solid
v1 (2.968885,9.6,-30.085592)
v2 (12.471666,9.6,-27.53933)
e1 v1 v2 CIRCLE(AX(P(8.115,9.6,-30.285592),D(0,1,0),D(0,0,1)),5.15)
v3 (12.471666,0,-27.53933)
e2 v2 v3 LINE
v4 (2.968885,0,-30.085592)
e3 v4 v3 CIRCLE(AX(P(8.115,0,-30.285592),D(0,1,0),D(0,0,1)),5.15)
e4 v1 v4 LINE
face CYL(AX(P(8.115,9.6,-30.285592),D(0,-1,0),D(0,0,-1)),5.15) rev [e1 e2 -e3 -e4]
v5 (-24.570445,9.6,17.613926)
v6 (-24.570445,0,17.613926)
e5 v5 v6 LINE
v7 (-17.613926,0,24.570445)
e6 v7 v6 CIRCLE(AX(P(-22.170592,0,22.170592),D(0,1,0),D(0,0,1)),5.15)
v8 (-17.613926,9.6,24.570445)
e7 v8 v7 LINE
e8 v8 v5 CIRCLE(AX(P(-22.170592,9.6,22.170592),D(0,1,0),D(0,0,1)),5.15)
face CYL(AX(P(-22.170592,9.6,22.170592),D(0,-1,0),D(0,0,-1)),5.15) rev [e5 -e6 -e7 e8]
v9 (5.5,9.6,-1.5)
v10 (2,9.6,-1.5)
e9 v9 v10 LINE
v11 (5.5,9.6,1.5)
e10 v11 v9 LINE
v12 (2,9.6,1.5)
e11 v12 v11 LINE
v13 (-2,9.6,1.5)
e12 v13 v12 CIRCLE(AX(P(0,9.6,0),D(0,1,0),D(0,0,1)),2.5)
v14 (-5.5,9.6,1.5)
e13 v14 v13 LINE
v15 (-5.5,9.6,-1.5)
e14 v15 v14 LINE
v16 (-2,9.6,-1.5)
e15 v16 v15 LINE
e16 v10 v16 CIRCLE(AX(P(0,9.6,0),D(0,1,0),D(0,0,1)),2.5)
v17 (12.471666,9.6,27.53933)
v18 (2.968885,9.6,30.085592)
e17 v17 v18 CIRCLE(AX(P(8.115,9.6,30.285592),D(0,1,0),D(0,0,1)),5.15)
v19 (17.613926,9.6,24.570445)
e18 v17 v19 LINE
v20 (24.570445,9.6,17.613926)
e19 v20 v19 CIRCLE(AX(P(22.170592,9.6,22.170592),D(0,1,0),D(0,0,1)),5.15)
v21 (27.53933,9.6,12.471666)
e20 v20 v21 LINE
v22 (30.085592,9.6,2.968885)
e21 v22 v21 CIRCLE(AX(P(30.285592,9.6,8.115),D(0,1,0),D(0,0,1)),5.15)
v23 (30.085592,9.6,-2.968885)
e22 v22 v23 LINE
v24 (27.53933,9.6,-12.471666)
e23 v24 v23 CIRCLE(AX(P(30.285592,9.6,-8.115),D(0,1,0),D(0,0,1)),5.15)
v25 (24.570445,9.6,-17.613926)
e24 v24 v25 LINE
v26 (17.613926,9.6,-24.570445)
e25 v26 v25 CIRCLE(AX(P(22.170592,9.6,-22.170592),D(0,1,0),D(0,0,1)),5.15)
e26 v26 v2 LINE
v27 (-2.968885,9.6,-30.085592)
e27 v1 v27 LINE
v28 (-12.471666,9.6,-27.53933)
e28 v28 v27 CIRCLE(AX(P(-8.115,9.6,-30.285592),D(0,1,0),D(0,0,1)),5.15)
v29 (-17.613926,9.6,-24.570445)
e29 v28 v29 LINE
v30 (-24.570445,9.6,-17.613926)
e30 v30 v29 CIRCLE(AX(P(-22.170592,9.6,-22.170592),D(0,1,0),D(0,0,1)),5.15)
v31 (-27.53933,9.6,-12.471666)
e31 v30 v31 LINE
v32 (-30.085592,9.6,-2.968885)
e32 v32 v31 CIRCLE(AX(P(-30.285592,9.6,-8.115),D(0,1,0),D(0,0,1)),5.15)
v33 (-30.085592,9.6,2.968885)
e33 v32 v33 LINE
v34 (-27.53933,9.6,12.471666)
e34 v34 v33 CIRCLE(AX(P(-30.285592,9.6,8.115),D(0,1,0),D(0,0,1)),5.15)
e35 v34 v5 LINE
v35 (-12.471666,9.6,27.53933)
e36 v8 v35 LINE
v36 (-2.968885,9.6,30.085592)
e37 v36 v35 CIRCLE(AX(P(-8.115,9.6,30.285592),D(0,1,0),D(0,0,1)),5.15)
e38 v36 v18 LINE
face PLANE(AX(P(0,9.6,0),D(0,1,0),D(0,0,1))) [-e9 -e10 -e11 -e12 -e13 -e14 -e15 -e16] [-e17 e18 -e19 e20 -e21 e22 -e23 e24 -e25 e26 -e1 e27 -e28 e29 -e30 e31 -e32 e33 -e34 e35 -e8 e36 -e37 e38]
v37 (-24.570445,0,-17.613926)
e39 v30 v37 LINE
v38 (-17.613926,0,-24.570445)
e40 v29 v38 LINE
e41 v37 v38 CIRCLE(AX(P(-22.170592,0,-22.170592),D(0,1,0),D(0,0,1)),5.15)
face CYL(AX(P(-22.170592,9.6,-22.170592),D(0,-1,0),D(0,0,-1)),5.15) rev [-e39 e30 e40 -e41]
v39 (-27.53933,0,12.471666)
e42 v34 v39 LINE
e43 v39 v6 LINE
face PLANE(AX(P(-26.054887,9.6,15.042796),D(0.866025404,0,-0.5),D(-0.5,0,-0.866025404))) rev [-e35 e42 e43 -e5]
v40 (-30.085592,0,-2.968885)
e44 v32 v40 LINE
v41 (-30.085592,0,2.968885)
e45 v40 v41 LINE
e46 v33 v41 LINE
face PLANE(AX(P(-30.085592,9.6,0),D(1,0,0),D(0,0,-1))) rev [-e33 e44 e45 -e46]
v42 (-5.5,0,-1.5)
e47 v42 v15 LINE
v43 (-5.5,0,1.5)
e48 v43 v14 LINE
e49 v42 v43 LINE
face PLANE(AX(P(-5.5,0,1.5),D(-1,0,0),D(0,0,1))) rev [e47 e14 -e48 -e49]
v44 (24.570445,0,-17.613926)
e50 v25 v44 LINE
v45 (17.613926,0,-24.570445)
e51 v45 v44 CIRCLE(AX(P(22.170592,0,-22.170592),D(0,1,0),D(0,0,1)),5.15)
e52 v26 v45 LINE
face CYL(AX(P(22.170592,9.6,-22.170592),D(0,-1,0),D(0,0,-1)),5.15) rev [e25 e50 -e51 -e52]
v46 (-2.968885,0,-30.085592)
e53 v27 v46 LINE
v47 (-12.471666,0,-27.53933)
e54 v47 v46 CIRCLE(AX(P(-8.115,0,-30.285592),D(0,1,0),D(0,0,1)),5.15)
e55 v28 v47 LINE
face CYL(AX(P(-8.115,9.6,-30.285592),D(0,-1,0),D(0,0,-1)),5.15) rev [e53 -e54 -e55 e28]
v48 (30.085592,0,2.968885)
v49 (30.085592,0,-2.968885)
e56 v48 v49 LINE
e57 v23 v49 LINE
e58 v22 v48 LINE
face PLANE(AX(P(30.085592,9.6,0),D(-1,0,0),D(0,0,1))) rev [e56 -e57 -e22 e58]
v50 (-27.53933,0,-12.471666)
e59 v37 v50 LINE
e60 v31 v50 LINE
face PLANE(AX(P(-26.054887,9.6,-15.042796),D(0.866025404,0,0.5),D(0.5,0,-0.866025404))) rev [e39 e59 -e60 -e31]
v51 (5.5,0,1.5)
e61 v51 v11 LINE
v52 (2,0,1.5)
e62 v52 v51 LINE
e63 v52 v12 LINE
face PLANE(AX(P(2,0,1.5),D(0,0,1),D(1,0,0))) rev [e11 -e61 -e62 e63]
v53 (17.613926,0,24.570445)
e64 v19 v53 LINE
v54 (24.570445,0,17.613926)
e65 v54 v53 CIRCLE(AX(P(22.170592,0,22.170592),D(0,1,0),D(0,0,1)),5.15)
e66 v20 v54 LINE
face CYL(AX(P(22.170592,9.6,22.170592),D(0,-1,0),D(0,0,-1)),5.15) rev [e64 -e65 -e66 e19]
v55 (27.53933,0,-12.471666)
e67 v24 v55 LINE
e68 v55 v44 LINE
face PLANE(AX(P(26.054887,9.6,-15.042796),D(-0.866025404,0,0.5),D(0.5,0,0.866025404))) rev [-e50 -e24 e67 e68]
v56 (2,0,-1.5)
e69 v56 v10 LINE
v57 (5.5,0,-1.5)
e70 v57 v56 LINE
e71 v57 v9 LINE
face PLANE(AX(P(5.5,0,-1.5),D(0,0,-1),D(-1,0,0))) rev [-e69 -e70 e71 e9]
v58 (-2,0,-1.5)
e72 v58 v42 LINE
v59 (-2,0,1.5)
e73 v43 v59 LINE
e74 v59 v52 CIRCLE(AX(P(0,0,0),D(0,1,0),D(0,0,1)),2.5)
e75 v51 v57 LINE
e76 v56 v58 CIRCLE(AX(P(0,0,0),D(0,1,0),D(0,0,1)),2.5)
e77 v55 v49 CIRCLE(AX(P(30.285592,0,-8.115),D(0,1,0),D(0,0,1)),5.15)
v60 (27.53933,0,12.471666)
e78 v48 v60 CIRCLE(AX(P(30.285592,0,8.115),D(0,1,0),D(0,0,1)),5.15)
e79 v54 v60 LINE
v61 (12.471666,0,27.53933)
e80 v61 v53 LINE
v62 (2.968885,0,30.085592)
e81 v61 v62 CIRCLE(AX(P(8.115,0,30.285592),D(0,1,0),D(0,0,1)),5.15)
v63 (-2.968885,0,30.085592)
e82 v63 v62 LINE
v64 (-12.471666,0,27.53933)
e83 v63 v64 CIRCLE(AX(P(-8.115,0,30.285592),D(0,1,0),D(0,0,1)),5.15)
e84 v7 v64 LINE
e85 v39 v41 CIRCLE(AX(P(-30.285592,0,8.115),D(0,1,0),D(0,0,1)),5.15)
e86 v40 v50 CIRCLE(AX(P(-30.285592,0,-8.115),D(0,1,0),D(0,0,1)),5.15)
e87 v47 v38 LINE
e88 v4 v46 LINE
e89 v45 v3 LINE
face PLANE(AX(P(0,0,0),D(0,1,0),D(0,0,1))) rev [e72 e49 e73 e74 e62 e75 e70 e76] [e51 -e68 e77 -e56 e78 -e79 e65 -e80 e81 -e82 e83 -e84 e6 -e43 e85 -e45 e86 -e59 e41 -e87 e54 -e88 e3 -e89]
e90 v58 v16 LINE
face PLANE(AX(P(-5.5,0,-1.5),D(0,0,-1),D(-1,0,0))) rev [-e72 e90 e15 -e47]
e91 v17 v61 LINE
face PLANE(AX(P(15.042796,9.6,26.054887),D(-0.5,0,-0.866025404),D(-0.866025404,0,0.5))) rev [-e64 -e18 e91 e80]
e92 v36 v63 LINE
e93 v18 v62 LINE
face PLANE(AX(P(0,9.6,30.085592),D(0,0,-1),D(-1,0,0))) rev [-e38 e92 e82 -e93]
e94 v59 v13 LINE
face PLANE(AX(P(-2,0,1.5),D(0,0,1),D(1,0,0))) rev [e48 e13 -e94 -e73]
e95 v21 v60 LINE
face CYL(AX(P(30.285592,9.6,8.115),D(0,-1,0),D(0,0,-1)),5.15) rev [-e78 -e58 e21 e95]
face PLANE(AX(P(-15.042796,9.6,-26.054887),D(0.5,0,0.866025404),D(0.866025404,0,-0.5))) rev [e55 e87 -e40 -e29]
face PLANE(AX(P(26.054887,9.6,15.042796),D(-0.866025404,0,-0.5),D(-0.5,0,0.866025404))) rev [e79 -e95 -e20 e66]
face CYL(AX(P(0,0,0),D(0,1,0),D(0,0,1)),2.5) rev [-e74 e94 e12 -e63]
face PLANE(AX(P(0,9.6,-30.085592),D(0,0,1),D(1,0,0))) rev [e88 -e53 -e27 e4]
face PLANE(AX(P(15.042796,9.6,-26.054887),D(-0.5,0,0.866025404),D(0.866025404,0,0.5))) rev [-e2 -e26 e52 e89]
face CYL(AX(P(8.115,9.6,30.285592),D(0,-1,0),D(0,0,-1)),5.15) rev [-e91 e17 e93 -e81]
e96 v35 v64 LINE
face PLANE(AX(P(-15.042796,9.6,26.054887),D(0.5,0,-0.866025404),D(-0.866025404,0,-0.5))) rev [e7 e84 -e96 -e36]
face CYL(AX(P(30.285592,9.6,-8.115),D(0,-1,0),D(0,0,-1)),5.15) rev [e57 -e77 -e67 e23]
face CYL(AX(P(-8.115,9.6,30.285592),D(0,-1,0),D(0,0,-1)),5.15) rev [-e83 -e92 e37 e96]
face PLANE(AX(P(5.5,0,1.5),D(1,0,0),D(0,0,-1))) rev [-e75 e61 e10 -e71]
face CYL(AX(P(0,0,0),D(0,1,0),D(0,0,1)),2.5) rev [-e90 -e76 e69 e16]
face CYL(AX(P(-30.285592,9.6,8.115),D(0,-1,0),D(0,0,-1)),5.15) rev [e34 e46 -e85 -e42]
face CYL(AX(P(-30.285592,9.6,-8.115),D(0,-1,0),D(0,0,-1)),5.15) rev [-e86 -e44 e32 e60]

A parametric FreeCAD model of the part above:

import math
import FreeCAD as App
import Part
import Sketcher
Q = App.Units.Quantity

doc = App.newDocument("Part")
body = doc.addObject("PartDesign::Body", "Body")

# Sketch on XZ plane
sketch1 = body.newObject("Sketcher::SketchObject", "Sketch")
sketch1.AttachmentSupport = (doc.getObject("XZ_Plane"), [""])
sketch1.MapMode = "FlatFace"
sketch1.addGeometry(Part.ArcOfCircle(Part.Circle(App.Vector(-8, 30, 0), App.Vector(0, 0, 1), 5), math.radians(-148), math.radians(-2)), False)
sketch1.addGeometry(Part.LineSegment(App.Vector(-3, 30, 0), App.Vector(3, 30, 0)), False)
sketch1.addGeometry(Part.ArcOfCircle(Part.Circle(App.Vector(8, 30, 0), App.Vector(0, 0, 1), 5), math.radians(-178), math.radians(-32)), False)
sketch1.addGeometry(Part.LineSegment(App.Vector(12, 28, 0), App.Vector(18, 25, 0)), False)
sketch1.addGeometry(Part.ArcOfCircle(Part.Circle(App.Vector(22, 22, 0), App.Vector(0, 0, 1), 5), math.radians(152), math.radians(298)), False)
sketch1.addGeometry(Part.LineSegment(App.Vector(25, 18, 0), App.Vector(28, 12, 0)), False)
sketch1.addGeometry(Part.ArcOfCircle(Part.Circle(App.Vector(30, 8, 0), App.Vector(0, 0, 1), 5), math.radians(122), math.radians(268)), False)
sketch1.addGeometry(Part.LineSegment(App.Vector(30, 3, 0), App.Vector(30, -3, 0)), False)
sketch1.addGeometry(Part.ArcOfCircle(Part.Circle(App.Vector(30, -8, 0), App.Vector(0, 0, 1), 5), math.radians(92), math.radians(238)), False)
sketch1.addGeometry(Part.LineSegment(App.Vector(28, -12, 0), App.Vector(25, -18, 0)), False)
sketch1.addGeometry(Part.ArcOfCircle(Part.Circle(App.Vector(22, -22, 0), App.Vector(0, 0, 1), 5), math.radians(62), math.radians(208)), False)
sketch1.addGeometry(Part.LineSegment(App.Vector(18, -25, 0), App.Vector(12, -28, 0)), False)
sketch1.addGeometry(Part.ArcOfCircle(Part.Circle(App.Vector(8, -30, 0), App.Vector(0, 0, 1), 5), math.radians(32), math.radians(178)), False)
sketch1.addGeometry(Part.LineSegment(App.Vector(3, -30, 0), App.Vector(-3, -30, 0)), False)
sketch1.addGeometry(Part.ArcOfCircle(Part.Circle(App.Vector(-8, -30, 0), App.Vector(0, 0, 1), 5), math.radians(2), math.radians(148)), False)
sketch1.addGeometry(Part.LineSegment(App.Vector(-12, -28, 0), App.Vector(-18, -25, 0)), False)
sketch1.addGeometry(Part.ArcOfCircle(Part.Circle(App.Vector(-22, -22, 0), App.Vector(0, 0, 1), 5), math.radians(-28), math.radians(118)), False)
sketch1.addGeometry(Part.LineSegment(App.Vector(-25, -18, 0), App.Vector(-28, -12, 0)), False)
sketch1.addGeometry(Part.ArcOfCircle(Part.Circle(App.Vector(-30, -8, 0), App.Vector(0, 0, 1), 5), math.radians(-58), math.radians(88)), False)
sketch1.addGeometry(Part.LineSegment(App.Vector(-30, -3, 0), App.Vector(-30, 3, 0)), False)
sketch1.addGeometry(Part.ArcOfCircle(Part.Circle(App.Vector(-30, 8, 0), App.Vector(0, 0, 1), 5), math.radians(-88), math.radians(58)), False)
sketch1.addGeometry(Part.LineSegment(App.Vector(-28, 12, 0), App.Vector(-25, 18, 0)), False)
sketch1.addGeometry(Part.ArcOfCircle(Part.Circle(App.Vector(-22, 22, 0), App.Vector(0, 0, 1), 5), math.radians(-118), math.radians(28)), False)
sketch1.addGeometry(Part.LineSegment(App.Vector(-18, 25, 0), App.Vector(-12, 28, 0)), False)
sketch1.addConstraint(Sketcher.Constraint("Coincident", 0, 2, 1, 1))
sketch1.addConstraint(Sketcher.Constraint("Coincident", 1, 2, 2, 1))
sketch1.addConstraint(Sketcher.Constraint("Coincident", 2, 2, 3, 1))
sketch1.addConstraint(Sketcher.Constraint("Coincident", 3, 2, 4, 1))
sketch1.addConstraint(Sketcher.Constraint("Coincident", 4, 2, 5, 1))
sketch1.addConstraint(Sketcher.Constraint("Coincident", 5, 2, 6, 1))
sketch1.addConstraint(Sketcher.Constraint("Coincident", 6, 2, 7, 1))
sketch1.addConstraint(Sketcher.Constraint("Coincident", 7, 2, 8, 1))
sketch1.addConstraint(Sketcher.Constraint("Coincident", 8, 2, 9, 1))
sketch1.addConstraint(Sketcher.Constraint("Coincident", 9, 2, 10, 1))
sketch1.addConstraint(Sketcher.Constraint("Coincident", 10, 2, 11, 1))
sketch1.addConstraint(Sketcher.Constraint("Coincident", 11, 2, 12, 1))
sketch1.addConstraint(Sketcher.Constraint("Coincident", 12, 2, 13, 1))
sketch1.addConstraint(Sketcher.Constraint("Coincident", 13, 2, 14, 1))
sketch1.addConstraint(Sketcher.Constraint("Coincident", 14, 2, 15, 1))
sketch1.addConstraint(Sketcher.Constraint("Coincident", 15, 2, 16, 1))
sketch1.addConstraint(Sketcher.Constraint("Coincident", 16, 2, 17, 1))
sketch1.addConstraint(Sketcher.Constraint("Coincident", 17, 2, 18, 1))
sketch1.addConstraint(Sketcher.Constraint("Coincident", 18, 2, 19, 1))
sketch1.addConstraint(Sketcher.Constraint("Coincident", 19, 2, 20, 1))
sketch1.addConstraint(Sketcher.Constraint("Coincident", 20, 2, 21, 1))
sketch1.addConstraint(Sketcher.Constraint("Coincident", 21, 2, 22, 1))
sketch1.addConstraint(Sketcher.Constraint("Coincident", 22, 2, 23, 1))
sketch1.addConstraint(Sketcher.Constraint("Coincident", 23, 2, 0, 1))
sketch1.addConstraint(Sketcher.Constraint("Horizontal", 1))
sketch1.addConstraint(Sketcher.Constraint("Vertical", 7))
sketch1.addConstraint(Sketcher.Constraint("Horizontal", 13))
sketch1.addConstraint(Sketcher.Constraint("Vertical", 19))
sketch1.addConstraint(Sketcher.Constraint("Equal", 0, 2))
sketch1.addConstraint(Sketcher.Constraint("Equal", 2, 4))
sketch1.addConstraint(Sketcher.Constraint("Equal", 4, 6))
sketch1.addConstraint(Sketcher.Constraint("Equal", 6, 8))
sketch1.addConstraint(Sketcher.Constraint("Equal", 8, 10))
sketch1.addConstraint(Sketcher.Constraint("Equal", 10, 12))
sketch1.addConstraint(Sketcher.Constraint("Equal", 12, 14))
sketch1.addConstraint(Sketcher.Constraint("Equal", 14, 16))
sketch1.addConstraint(Sketcher.Constraint("Equal", 16, 18))
sketch1.addConstraint(Sketcher.Constraint("Equal", 18, 20))
sketch1.addConstraint(Sketcher.Constraint("Equal", 20, 22))
sketch1.addConstraint(Sketcher.Constraint("Symmetric", 0, 3, 12, 3, -1, 1))
sketch1.addConstraint(Sketcher.Constraint("Symmetric", 2, 3, 14, 3, -1, 1))
sketch1.addConstraint(Sketcher.Constraint("Symmetric", 4, 3, 16, 3, -1, 1))
sketch1.addConstraint(Sketcher.Constraint("Symmetric", 6, 3, 18, 3, -1, 1))
sketch1.addConstraint(Sketcher.Constraint("Symmetric", 8, 3, 20, 3, -1, 1))
sketch1.addConstraint(Sketcher.Constraint("Symmetric", 10, 3, 22, 3, -1, 1))
sketch1.addConstraint(Sketcher.Constraint("Symmetric", 0, 3, 2, 3, -2))
sketch1.addConstraint(Sketcher.Constraint("Symmetric", 10, 3, 16, 3, -2))
sketch1.addConstraint(Sketcher.Constraint("Symmetric", 8, 3, 18, 3, -2))
sketch1.addConstraint(Sketcher.Constraint("Perpendicular", 3, 9))
sketch1.addConstraint(Sketcher.Constraint("Perpendicular", 5, 11))
sketch1.addConstraint(Sketcher.Constraint("Perpendicular", 9, 15))
sketch1.addConstraint(Sketcher.Constraint("Perpendicular", 11, 17))
sketch1.addConstraint(Sketcher.Constraint("Perpendicular", 15, 21))
sketch1.addConstraint(Sketcher.Constraint("Perpendicular", 17, 23))
sketch1.addConstraint(Sketcher.Constraint("Horizontal", 11, 2, 14, 2))
sketch1.addConstraint(Sketcher.Constraint("Horizontal", 10, 2, 15, 2))
sketch1.addConstraint(Sketcher.Constraint("Horizontal", 9, 2, 16, 2))
sketch1.addConstraint(Sketcher.Constraint("Horizontal", 7, 2, 18, 2))
sketch1.addConstraint(Sketcher.Constraint("Horizontal", 5, 2, 20, 2))
sketch1.addConstraint(Sketcher.Constraint("Horizontal", 3, 2, 22, 2))
sketch1.addConstraint(Sketcher.Constraint("Vertical", 5, 2, 8, 2))
sketch1.addConstraint(Sketcher.Constraint("Vertical", 3, 2, 10, 2))
sketch1.addConstraint(Sketcher.Constraint("Vertical", 1, 2, 12, 2))
sketch1.addConstraint(Sketcher.Constraint("Equal", 13, 7))
sketch1.addConstraint(Sketcher.Constraint("Equal", 3, 5))
sketch1.addConstraint(Sketcher.Constraint("Angle", 3, Q("-30 deg")))
sketch1.addConstraint(Sketcher.Constraint("Radius", 0, 5.15))
sketch1.addConstraint(Sketcher.Constraint("DistanceY", 0, 2, 0, 3, 0.2))
sketch1.addConstraint(Sketcher.Constraint("DistanceX", 6, 2, 6, 3, 0.2))
sketch1.addConstraint(Sketcher.Constraint("DistanceX", 0, 3, 2, 3, 16.23))
sketch1.addConstraint(Sketcher.Constraint("DistanceY", 4, 3, 2, 3, 8.115))
sketch1.addConstraint(Sketcher.Constraint("DistanceX", 4, 3, 6, 3, 8.115))
sketch1.addConstraint(Sketcher.Constraint("Distance", 3, 5.93777))
sketch1.addConstraint(Sketcher.Constraint("DistanceY", -1, 1, 2, 2, 27.53933))
sketch1.addConstraint(Sketcher.Constraint("DistanceX", -1, 1, 5, 2, 27.53933))
pad1 = body.newObject("PartDesign::Pad", "Pad")
pad1.Profile = sketch1
pad1.Length = 9.6
pad1.Reversed = True

# Sketch on XZ plane
sketch2 = body.newObject("Sketcher::SketchObject", "Sketch001")
sketch2.AttachmentSupport = (doc.getObject("XZ_Plane"), [""])
sketch2.MapMode = "FlatFace"
sketch2.AttachmentOffset = App.Placement(App.Vector(0, 0, -9.6), App.Rotation())
sketch2.addGeometry(Part.LineSegment(App.Vector(-5.5, 1.5, 0), App.Vector(-2, 1.5, 0)), False)
sketch2.addGeometry(Part.ArcOfCircle(Part.Circle(App.Vector(0, 0, 0), App.Vector(0, 0, 1), 2.5), math.radians(37), math.radians(143)), False)
sketch2.addGeometry(Part.LineSegment(App.Vector(2, 1.5, 0), App.Vector(5.5, 1.5, 0)), False)
sketch2.addGeometry(Part.LineSegment(App.Vector(5.5, 1.5, 0), App.Vector(5.5, -1.5, 0)), False)
sketch2.addGeometry(Part.LineSegment(App.Vector(5.5, -1.5, 0), App.Vector(2, -1.5, 0)), False)
sketch2.addGeometry(Part.ArcOfCircle(Part.Circle(App.Vector(0, 0, 0), App.Vector(0, 0, 1), 2.5), math.radians(-143), math.radians(-37)), False)
sketch2.addGeometry(Part.LineSegment(App.Vector(-2, -1.5, 0), App.Vector(-5.5, -1.5, 0)), False)
sketch2.addGeometry(Part.LineSegment(App.Vector(-5.5, -1.5, 0), App.Vector(-5.5, 1.5, 0)), False)
sketch2.addConstraint(Sketcher.Constraint("Coincident", 0, 2, 1, 2))
sketch2.addConstraint(Sketcher.Constraint("Coincident", 1, 1, 2, 1))
sketch2.addConstraint(Sketcher.Constraint("Coincident", 2, 2, 3, 1))
sketch2.addConstraint(Sketcher.Constraint("Coincident", 3, 2, 4, 1))
sketch2.addConstraint(Sketcher.Constraint("Coincident", 4, 2, 5, 2))
sketch2.addConstraint(Sketcher.Constraint("Coincident", 5, 1, 6, 1))
sketch2.addConstraint(Sketcher.Constraint("Coincident", 6, 2, 7, 1))
sketch2.addConstraint(Sketcher.Constraint("Coincident", 7, 2, 0, 1))
sketch2.addConstraint(Sketcher.Constraint("Horizontal", 0))
sketch2.addConstraint(Sketcher.Constraint("Horizontal", 2))
sketch2.addConstraint(Sketcher.Constraint("Vertical", 3))
sketch2.addConstraint(Sketcher.Constraint("Horizontal", 4))
sketch2.addConstraint(Sketcher.Constraint("Horizontal", 6))
sketch2.addConstraint(Sketcher.Constraint("Vertical", 7))
sketch2.addConstraint(Sketcher.Constraint("Coincident", 1, 3, -1, 1))
sketch2.addConstraint(Sketcher.Constraint("Coincident", 5, 3, -1, 1))
sketch2.addConstraint(Sketcher.Constraint("Equal", 1, 5))
sketch2.addConstraint(Sketcher.Constraint("Symmetric", 2, 2, 6, 2, -1, 1))
sketch2.addConstraint(Sketcher.Constraint("Horizontal", 0, 2, 1, 1))
sketch2.addConstraint(Sketcher.Constraint("Horizontal", 4, 2, 5, 1))
sketch2.addConstraint(Sketcher.Constraint("Radius", 1, 2.5))
sketch2.addConstraint(Sketcher.Constraint("DistanceY", 3, 2, 3, 1, 3.0))
sketch2.addConstraint(Sketcher.Constraint("DistanceX", 0, 1, 0, 2, 3.5))
pocket1 = body.newObject("PartDesign::Pocket", "Pocket")
pocket1.Profile = sketch2
pocket1.Type = "ThroughAll"
pocket1.Reversed = True

doc.recompute()
